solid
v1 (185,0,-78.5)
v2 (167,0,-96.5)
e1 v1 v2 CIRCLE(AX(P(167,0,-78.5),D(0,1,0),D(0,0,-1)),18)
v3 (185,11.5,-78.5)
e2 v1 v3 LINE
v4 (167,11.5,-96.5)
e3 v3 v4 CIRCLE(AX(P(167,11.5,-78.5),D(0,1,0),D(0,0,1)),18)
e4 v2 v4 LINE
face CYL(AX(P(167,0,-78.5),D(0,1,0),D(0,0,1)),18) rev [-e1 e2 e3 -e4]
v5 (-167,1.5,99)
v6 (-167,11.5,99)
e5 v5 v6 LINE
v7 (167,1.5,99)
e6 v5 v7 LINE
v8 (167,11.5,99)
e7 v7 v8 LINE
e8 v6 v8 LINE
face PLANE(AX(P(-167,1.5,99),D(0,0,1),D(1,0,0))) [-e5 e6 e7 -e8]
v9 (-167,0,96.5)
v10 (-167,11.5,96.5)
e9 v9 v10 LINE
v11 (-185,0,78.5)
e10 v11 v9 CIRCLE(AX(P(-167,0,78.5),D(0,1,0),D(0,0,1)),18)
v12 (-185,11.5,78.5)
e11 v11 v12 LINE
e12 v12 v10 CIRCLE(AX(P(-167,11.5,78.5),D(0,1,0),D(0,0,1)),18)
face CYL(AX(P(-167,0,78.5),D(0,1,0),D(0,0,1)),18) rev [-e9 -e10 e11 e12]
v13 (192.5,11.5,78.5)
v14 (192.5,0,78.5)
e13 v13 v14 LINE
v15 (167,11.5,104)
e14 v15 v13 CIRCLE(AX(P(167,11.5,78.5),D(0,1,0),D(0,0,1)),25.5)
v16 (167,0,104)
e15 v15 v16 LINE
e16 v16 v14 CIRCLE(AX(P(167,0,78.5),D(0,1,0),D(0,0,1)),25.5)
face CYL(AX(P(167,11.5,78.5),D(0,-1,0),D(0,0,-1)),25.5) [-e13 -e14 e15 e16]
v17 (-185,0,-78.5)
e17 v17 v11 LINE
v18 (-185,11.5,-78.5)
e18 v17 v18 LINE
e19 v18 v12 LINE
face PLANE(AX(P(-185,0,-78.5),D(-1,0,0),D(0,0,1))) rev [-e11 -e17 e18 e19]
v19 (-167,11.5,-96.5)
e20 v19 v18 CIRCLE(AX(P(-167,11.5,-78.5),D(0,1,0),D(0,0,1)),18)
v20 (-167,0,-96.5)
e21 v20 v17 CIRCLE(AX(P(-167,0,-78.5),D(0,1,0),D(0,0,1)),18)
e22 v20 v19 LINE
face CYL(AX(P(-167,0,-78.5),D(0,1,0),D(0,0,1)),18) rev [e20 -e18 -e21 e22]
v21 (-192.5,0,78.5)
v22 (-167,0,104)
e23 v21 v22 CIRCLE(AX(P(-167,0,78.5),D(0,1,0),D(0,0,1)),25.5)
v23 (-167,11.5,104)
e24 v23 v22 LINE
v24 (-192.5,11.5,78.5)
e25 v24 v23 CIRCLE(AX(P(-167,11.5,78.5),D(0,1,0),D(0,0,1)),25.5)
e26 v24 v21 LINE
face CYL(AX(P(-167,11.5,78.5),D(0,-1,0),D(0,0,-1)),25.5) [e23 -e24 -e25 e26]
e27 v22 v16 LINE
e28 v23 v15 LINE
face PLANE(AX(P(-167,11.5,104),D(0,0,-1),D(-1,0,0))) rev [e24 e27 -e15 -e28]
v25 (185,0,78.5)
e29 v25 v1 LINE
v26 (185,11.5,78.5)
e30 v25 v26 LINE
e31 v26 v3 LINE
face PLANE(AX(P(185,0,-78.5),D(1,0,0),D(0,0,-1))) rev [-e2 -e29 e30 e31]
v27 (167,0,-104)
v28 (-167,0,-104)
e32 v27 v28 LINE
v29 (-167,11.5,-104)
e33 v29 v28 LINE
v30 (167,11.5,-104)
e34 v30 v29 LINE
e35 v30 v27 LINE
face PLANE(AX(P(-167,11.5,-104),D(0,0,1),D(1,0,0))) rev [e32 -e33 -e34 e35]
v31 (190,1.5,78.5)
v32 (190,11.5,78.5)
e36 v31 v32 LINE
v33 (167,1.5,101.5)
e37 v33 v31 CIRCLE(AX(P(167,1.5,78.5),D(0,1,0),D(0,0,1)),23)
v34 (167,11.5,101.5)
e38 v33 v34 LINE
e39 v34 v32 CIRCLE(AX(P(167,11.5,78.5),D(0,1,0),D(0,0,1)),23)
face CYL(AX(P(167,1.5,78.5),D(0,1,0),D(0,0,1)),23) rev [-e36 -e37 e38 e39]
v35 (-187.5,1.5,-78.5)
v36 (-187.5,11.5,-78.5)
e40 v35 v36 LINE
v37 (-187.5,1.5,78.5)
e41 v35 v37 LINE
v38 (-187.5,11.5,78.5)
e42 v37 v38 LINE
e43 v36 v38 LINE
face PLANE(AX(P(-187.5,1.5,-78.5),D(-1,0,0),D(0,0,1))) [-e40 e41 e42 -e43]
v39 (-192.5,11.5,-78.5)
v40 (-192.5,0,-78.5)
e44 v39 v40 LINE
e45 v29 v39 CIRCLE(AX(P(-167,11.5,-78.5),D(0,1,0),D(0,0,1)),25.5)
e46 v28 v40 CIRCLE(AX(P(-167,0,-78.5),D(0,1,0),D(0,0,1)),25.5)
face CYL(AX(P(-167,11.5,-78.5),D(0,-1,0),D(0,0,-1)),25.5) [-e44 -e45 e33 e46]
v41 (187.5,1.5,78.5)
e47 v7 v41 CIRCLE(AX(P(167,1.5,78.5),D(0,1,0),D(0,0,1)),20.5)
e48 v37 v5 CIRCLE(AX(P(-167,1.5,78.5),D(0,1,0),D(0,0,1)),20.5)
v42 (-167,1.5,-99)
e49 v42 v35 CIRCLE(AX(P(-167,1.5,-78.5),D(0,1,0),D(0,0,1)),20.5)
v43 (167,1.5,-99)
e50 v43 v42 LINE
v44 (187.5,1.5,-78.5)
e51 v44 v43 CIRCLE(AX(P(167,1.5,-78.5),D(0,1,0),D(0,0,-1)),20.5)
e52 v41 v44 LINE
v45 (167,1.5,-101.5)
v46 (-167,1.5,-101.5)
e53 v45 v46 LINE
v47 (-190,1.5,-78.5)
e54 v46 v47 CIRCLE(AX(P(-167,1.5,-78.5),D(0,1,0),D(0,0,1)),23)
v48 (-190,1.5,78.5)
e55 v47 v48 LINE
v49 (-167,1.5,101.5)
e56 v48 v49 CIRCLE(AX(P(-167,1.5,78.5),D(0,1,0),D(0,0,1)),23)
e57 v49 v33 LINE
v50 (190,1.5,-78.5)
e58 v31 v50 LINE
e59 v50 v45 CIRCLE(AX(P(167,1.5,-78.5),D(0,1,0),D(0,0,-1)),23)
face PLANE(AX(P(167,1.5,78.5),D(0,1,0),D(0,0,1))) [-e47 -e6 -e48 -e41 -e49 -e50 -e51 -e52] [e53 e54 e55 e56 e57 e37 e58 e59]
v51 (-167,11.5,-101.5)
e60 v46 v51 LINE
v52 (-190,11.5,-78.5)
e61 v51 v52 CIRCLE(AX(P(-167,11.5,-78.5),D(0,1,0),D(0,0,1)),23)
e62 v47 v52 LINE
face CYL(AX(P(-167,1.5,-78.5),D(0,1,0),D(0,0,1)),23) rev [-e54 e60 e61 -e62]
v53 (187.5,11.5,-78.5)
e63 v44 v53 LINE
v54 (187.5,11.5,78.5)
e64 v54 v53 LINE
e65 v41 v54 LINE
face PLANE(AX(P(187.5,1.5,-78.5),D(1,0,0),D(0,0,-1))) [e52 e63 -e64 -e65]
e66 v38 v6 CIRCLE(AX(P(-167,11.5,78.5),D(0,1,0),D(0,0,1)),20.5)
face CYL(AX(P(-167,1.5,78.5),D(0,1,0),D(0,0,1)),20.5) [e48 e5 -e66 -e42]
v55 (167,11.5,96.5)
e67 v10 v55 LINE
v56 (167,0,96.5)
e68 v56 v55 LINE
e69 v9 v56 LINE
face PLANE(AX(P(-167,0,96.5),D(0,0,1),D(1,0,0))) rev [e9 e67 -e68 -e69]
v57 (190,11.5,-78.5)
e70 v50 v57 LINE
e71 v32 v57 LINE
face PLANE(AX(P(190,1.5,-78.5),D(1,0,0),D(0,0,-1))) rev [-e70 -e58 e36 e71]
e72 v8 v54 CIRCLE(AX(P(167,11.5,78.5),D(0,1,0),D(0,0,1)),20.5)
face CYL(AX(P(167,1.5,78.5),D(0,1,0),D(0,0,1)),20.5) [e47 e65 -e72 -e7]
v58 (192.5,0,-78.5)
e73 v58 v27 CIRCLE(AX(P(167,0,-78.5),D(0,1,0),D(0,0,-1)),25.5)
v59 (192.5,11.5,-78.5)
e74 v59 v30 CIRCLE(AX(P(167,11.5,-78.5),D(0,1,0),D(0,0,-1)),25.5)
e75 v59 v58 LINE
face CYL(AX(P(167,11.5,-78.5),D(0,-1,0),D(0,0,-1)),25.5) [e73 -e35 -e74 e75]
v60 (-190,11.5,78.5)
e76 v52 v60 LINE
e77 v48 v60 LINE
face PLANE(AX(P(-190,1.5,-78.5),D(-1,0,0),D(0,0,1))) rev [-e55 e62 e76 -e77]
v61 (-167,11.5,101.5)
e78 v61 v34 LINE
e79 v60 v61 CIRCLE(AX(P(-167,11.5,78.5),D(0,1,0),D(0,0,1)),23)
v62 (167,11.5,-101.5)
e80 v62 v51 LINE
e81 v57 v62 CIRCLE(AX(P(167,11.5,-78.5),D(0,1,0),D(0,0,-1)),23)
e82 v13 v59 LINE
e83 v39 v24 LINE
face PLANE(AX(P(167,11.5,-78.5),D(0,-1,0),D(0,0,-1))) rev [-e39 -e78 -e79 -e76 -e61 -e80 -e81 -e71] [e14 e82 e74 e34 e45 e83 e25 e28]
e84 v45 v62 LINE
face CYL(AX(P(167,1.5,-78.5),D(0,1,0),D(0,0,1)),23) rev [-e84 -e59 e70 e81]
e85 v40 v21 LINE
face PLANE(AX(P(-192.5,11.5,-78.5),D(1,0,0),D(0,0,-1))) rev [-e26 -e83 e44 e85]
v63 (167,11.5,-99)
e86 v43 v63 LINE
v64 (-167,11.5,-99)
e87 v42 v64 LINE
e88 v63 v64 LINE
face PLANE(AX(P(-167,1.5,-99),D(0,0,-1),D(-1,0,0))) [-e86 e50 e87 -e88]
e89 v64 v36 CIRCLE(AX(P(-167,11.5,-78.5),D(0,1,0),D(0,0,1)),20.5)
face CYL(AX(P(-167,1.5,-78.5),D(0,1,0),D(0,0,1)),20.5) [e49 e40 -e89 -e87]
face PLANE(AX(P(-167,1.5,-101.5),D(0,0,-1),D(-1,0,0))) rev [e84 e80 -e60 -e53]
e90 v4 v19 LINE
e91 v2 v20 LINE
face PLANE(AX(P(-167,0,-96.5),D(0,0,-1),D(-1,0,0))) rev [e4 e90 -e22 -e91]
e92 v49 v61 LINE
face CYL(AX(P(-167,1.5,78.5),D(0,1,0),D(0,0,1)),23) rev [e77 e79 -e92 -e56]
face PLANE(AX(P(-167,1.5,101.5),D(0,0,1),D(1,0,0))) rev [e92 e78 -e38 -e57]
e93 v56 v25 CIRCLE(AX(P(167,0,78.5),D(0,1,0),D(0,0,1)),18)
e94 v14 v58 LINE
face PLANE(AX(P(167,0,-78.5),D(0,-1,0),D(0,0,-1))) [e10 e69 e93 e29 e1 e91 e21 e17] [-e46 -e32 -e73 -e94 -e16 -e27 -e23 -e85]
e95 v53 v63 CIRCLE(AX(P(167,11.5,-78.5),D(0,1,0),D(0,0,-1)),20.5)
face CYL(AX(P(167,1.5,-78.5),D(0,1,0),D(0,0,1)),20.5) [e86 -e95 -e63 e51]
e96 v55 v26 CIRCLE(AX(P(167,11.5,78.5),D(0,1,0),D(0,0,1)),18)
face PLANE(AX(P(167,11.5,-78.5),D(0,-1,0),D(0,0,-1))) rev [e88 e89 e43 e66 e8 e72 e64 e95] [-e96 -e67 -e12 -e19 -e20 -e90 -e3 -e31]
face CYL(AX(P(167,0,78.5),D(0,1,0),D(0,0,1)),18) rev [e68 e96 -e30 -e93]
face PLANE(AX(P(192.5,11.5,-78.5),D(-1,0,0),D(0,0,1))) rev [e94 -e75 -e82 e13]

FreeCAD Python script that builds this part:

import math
import FreeCAD as App
import Part
import Sketcher

V = App.Vector

doc = App.newDocument("Part")
body = doc.addObject("PartDesign::Body", "Body")

sketch1 = doc.addObject("Sketcher::SketchObject", "Sketch")
body.addObject(sketch1)
sketch1.AttachmentSupport = (doc.XZ_Plane, [""])
sketch1.MapMode = "FlatFace"
sketch1.addGeometry([
    Part.LineSegment(V(167, -104, 0), V(-167, -104, 0)),
    Part.ArcOfCircle(Part.Circle(V(-167, -78, 0), V(0, 0, 1), 26), math.radians(-180), math.radians(-90)),
    Part.LineSegment(V(-192, -78, 0), V(-192, 78, 0)),
    Part.ArcOfCircle(Part.Circle(V(-167, 78, 0), V(0, 0, 1), 26), math.radians(90), math.radians(180)),
    Part.LineSegment(V(-167, 104, 0), V(167, 104, 0)),
    Part.ArcOfCircle(Part.Circle(V(167, 78, 0), V(0, 0, 1), 26), math.radians(0), math.radians(90)),
    Part.LineSegment(V(192, 78, 0), V(192, -78, 0)),
    Part.ArcOfCircle(Part.Circle(V(167, -78, 0), V(0, 0, 1), 26), math.radians(-90), math.radians(0)),
], False)
sketch1.addConstraint([
    Sketcher.Constraint("Tangent", 0, 2, 1, 2),
    Sketcher.Constraint("Tangent", 1, 1, 2, 1),
    Sketcher.Constraint("Tangent", 2, 2, 3, 2),
    Sketcher.Constraint("Tangent", 3, 1, 4, 1),
    Sketcher.Constraint("Tangent", 4, 2, 5, 2),
    Sketcher.Constraint("Tangent", 5, 1, 6, 1),
    Sketcher.Constraint("Tangent", 6, 2, 7, 2),
    Sketcher.Constraint("Tangent", 7, 1, 0, 1),
    Sketcher.Constraint("Horizontal", 0),
    Sketcher.Constraint("Vertical", 2),
    Sketcher.Constraint("Horizontal", 4),
    Sketcher.Constraint("Vertical", 6),
    Sketcher.Constraint("Equal", 1, 3),
    Sketcher.Constraint("Equal", 3, 5),
    Sketcher.Constraint("Equal", 5, 7),
    Sketcher.Constraint("Symmetric", 1, 3, 5, 3, -1, 1),
    Sketcher.Constraint("Radius", 1, 25.5),
    Sketcher.Constraint("DistanceX", 0, 2, 0, 1, 334.0),
    Sketcher.Constraint("DistanceY", 2, 1, 2, 2, 157.0),
])
pad1 = doc.addObject("PartDesign::Pad", "Pad")
body.addObject(pad1)
pad1.Profile = sketch1
pad1.Length = 11.5
pad1.Reversed = True

sketch2 = doc.addObject("Sketcher::SketchObject", "Sketch001")
body.addObject(sketch2)
sketch2.AttachmentSupport = (doc.XZ_Plane, [""])
sketch2.MapMode = "FlatFace"
sketch2.AttachmentOffset = App.Placement(V(0, 0, -11.5), App.Rotation())
sketch2.addGeometry([
    Part.LineSegment(V(167, -96, 0), V(-167, -96, 0)),
    Part.ArcOfCircle(Part.Circle(V(-167, -78, 0), V(0, 0, 1), 18), math.radians(-180), math.radians(-90)),
    Part.LineSegment(V(-185, -78, 0), V(-185, 78, 0)),
    Part.ArcOfCircle(Part.Circle(V(-167, 78, 0), V(0, 0, 1), 18), math.radians(90), math.radians(180)),
    Part.LineSegment(V(-167, 96, 0), V(167, 96, 0)),
    Part.ArcOfCircle(Part.Circle(V(167, 78, 0), V(0, 0, 1), 18), math.radians(0), math.radians(90)),
    Part.LineSegment(V(185, 78, 0), V(185, -78, 0)),
    Part.ArcOfCircle(Part.Circle(V(167, -78, 0), V(0, 0, 1), 18), math.radians(-90), math.radians(0)),
], False)
sketch2.addConstraint([
    Sketcher.Constraint("Tangent", 0, 2, 1, 2),
    Sketcher.Constraint("Tangent", 1, 1, 2, 1),
    Sketcher.Constraint("Tangent", 2, 2, 3, 2),
    Sketcher.Constraint("Tangent", 3, 1, 4, 1),
    Sketcher.Constraint("Tangent", 4, 2, 5, 2),
    Sketcher.Constraint("Tangent", 5, 1, 6, 1),
    Sketcher.Constraint("Tangent", 6, 2, 7, 2),
    Sketcher.Constraint("Tangent", 7, 1, 0, 1),
    Sketcher.Constraint("Horizontal", 0),
    Sketcher.Constraint("Vertical", 2),
    Sketcher.Constraint("Horizontal", 4),
    Sketcher.Constraint("Vertical", 6),
    Sketcher.Constraint("Equal", 1, 3),
    Sketcher.Constraint("Equal", 3, 5),
    Sketcher.Constraint("Equal", 5, 7),
    Sketcher.Constraint("Symmetric", 1, 3, 5, 3, -1, 1),
    Sketcher.Constraint("Radius", 1, 18.0),
    Sketcher.Constraint("DistanceX", 0, 2, 0, 1, 334.0),
    Sketcher.Constraint("DistanceY", 2, 1, 2, 2, 157.0),
])
pocket1 = doc.addObject("PartDesign::Pocket", "Pocket")
body.addObject(pocket1)
pocket1.Profile = sketch2
pocket1.Type = "ThroughAll"
pocket1.Midplane = True

sketch3 = doc.addObject("Sketcher::SketchObject", "Sketch002")
body.addObject(sketch3)
sketch3.AttachmentSupport = (doc.XZ_Plane, [""])
sketch3.MapMode = "FlatFace"
sketch3.AttachmentOffset = App.Placement(V(0, 0, -11.5), App.Rotation())
sketch3.addGeometry([
    Part.LineSegment(V(167, -102, 0), V(-167, -102, 0)),
    Part.ArcOfCircle(Part.Circle(V(-167, -78, 0), V(0, 0, 1), 23), math.radians(-180), math.radians(-90)),
    Part.LineSegment(V(-190, -78, 0), V(-190, 78, 0)),
    Part.ArcOfCircle(Part.Circle(V(-167, 78, 0), V(0, 0, 1), 23), math.radians(90), math.radians(180)),
    Part.LineSegment(V(-167, 102, 0), V(167, 102, 0)),
    Part.ArcOfCircle(Part.Circle(V(167, 78, 0), V(0, 0, 1), 23), math.radians(0), math.radians(90)),
    Part.LineSegment(V(190, 78, 0), V(190, -78, 0)),
    Part.ArcOfCircle(Part.Circle(V(167, -78, 0), V(0, 0, 1), 23), math.radians(-90), math.radians(0)),
    Part.LineSegment(V(-167, -99, 0), V(167, -99, 0)),
    Part.ArcOfCircle(Part.Circle(V(167, -78, 0), V(0, 0, 1), 21), math.radians(-90), math.radians(0)),
    Part.LineSegment(V(188, -78, 0), V(188, 78, 0)),
    Part.ArcOfCircle(Part.Circle(V(167, 78, 0), V(0, 0, 1), 21), math.radians(0), math.radians(90)),
    Part.LineSegment(V(167, 99, 0), V(-167, 99, 0)),
    Part.ArcOfCircle(Part.Circle(V(-167, 78, 0), V(0, 0, 1), 21), math.radians(90), math.radians(180)),
    Part.LineSegment(V(-188, 78, 0), V(-188, -78, 0)),
    Part.ArcOfCircle(Part.Circle(V(-167, -78, 0), V(0, 0, 1), 21), math.radians(-180), math.radians(-90)),
], False)
sketch3.addConstraint([
    Sketcher.Constraint("Tangent", 0, 2, 1, 2),
    Sketcher.Constraint("Tangent", 1, 1, 2, 1),
    Sketcher.Constraint("Tangent", 2, 2, 3, 2),
    Sketcher.Constraint("Tangent", 3, 1, 4, 1),
    Sketcher.Constraint("Tangent", 4, 2, 5, 2),
    Sketcher.Constraint("Tangent", 5, 1, 6, 1),
    Sketcher.Constraint("Tangent", 6, 2, 7, 2),
    Sketcher.Constraint("Tangent", 7, 1, 0, 1),
    Sketcher.Constraint("Tangent", 8, 2, 9, 1),
    Sketcher.Constraint("Tangent", 9, 2, 10, 1),
    Sketcher.Constraint("Tangent", 10, 2, 11, 1),
    Sketcher.Constraint("Tangent", 11, 2, 12, 1),
    Sketcher.Constraint("Tangent", 12, 2, 13, 1),
    Sketcher.Constraint("Tangent", 13, 2, 14, 1),
    Sketcher.Constraint("Tangent", 14, 2, 15, 1),
    Sketcher.Constraint("Tangent", 15, 2, 8, 1),
    Sketcher.Constraint("Horizontal", 0),
    Sketcher.Constraint("Vertical", 2),
    Sketcher.Constraint("Horizontal", 4),
    Sketcher.Constraint("Vertical", 6),
    Sketcher.Constraint("Horizontal", 8),
    Sketcher.Constraint("Vertical", 10),
    Sketcher.Constraint("Horizontal", 12),
    Sketcher.Constraint("Vertical", 14),
    Sketcher.Constraint("Coincident", 9, 3, 7, 3),
    Sketcher.Constraint("Coincident", 11, 3, 5, 3),
    Sketcher.Constraint("Coincident", 13, 3, 3, 3),
    Sketcher.Constraint("Equal", 1, 3),
    Sketcher.Constraint("Equal", 3, 5),
    Sketcher.Constraint("Equal", 5, 7),
    Sketcher.Constraint("Equal", 13, 15),
    Sketcher.Constraint("Symmetric", 1, 3, 5, 3, -1, 1),
    Sketcher.Constraint("Radius", 1, 23.0),
    Sketcher.Constraint("Radius", 9, 20.5),
    Sketcher.Constraint("DistanceX", 0, 2, 0, 1, 334.0),
    Sketcher.Constraint("DistanceY", 2, 1, 2, 2, 157.0),
])
pocket2 = doc.addObject("PartDesign::Pocket", "Pocket001")
body.addObject(pocket2)
pocket2.Profile = sketch3
pocket2.Length = 10
pocket2.Reversed = True

doc.recompute()
